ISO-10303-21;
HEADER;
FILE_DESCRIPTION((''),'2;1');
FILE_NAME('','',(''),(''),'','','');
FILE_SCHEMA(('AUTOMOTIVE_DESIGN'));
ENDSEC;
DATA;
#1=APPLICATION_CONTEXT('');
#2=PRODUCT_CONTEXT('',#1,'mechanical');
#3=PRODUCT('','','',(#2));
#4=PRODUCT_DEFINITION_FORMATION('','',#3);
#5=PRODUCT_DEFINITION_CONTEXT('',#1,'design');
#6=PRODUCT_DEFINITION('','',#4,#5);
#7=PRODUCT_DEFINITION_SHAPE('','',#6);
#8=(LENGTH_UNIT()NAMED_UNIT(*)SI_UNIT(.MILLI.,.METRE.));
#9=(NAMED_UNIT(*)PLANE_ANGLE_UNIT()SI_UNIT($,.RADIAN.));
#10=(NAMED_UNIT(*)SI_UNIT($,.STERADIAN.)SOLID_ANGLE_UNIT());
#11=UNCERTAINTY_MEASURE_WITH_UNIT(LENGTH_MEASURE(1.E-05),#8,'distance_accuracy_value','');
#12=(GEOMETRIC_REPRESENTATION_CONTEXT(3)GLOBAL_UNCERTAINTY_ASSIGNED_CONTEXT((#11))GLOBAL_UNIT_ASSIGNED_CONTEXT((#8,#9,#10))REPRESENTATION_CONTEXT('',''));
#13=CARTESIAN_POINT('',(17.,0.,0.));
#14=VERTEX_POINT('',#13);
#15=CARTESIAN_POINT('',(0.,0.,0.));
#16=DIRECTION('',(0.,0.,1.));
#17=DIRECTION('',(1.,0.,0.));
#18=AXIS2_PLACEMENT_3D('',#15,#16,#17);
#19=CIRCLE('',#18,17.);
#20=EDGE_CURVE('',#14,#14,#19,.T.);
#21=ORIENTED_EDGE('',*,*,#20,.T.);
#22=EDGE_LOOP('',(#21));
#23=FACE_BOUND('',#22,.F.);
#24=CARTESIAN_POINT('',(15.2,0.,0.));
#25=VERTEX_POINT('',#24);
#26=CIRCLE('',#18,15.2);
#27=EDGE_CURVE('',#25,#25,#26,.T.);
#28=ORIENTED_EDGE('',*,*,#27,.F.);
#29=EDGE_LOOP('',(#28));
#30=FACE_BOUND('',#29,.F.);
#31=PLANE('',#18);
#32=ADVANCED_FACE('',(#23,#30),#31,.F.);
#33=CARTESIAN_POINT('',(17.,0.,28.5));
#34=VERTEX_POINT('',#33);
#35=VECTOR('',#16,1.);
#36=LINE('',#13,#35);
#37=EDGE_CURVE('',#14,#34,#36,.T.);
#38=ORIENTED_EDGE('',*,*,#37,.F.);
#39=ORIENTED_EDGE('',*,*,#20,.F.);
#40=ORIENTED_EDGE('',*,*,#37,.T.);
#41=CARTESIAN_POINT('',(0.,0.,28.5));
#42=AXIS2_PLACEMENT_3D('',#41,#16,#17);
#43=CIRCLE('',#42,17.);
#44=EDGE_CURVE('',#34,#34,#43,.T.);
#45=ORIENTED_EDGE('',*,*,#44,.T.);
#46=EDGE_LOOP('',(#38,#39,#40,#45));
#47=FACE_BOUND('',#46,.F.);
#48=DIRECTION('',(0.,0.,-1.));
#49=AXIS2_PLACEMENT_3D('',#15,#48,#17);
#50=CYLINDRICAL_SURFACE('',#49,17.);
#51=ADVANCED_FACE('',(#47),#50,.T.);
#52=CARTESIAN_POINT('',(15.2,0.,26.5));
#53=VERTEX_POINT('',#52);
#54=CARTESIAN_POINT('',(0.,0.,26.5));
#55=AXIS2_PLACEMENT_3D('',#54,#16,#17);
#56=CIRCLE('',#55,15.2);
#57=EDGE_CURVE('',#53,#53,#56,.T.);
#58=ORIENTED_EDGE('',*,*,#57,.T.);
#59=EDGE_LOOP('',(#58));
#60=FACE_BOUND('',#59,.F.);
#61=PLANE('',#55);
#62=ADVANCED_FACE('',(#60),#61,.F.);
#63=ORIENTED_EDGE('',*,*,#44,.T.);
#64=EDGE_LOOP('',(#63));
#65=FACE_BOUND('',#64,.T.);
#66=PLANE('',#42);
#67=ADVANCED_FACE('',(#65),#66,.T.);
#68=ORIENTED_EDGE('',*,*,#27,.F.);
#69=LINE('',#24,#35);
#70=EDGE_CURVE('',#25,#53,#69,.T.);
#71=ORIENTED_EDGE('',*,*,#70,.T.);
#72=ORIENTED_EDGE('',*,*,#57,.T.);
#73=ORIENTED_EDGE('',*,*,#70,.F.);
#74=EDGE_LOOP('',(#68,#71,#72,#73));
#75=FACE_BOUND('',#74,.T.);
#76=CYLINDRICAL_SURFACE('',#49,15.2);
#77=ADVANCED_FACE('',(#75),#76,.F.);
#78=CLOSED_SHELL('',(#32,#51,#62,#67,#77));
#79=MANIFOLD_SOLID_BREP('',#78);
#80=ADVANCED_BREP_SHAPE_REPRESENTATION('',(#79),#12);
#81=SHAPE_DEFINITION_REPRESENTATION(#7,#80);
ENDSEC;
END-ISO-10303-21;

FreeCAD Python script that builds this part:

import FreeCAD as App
import Part
import Sketcher

V = App.Vector

doc = App.newDocument("Part")
body = doc.addObject("PartDesign::Body", "Body")

# Sketch on XY plane
sketch1 = body.newObject("Sketcher::SketchObject", "Sketch")
sketch1.AttachmentSupport = (doc.getObject("XY_Plane"), [""])
sketch1.MapMode = "FlatFace"
sketch1.addGeometry(Part.Circle(V(0, 0, 0), V(0, 0, 1), 15.2), False)
sketch1.addConstraint(Sketcher.Constraint("Coincident", 0, 3, -1, 1))
sketch1.addConstraint(Sketcher.Constraint("Diameter", 0, 30.4))
pad1 = body.newObject("PartDesign::Pad", "Pad")
pad1.Profile = sketch1
pad1.Length = 26.5
body2 = doc.addObject("PartDesign::Body", "Body001")

# Sketch on XY plane
sketch2 = body2.newObject("Sketcher::SketchObject", "Sketch001")
sketch2.AttachmentSupport = (doc.getObject("XY_Plane001"), [""])
sketch2.MapMode = "FlatFace"
sketch2.addGeometry(Part.Circle(V(0, 0, 0), V(0, 0, 1), 17), False)
sketch2.addConstraint(Sketcher.Constraint("Coincident", 0, 3, -1, 1))
sketch2.addConstraint(Sketcher.Constraint("Diameter", 0, 34.0))
pad2 = body2.newObject("PartDesign::Pad", "Pad001")
pad2.Profile = sketch2
pad2.Length = 28.5
doc.recompute()

boolean = body2.newObject("PartDesign::Boolean", "Boolean")
boolean.Type = "Cut"
boolean.addObjects([body])

doc.recompute()
